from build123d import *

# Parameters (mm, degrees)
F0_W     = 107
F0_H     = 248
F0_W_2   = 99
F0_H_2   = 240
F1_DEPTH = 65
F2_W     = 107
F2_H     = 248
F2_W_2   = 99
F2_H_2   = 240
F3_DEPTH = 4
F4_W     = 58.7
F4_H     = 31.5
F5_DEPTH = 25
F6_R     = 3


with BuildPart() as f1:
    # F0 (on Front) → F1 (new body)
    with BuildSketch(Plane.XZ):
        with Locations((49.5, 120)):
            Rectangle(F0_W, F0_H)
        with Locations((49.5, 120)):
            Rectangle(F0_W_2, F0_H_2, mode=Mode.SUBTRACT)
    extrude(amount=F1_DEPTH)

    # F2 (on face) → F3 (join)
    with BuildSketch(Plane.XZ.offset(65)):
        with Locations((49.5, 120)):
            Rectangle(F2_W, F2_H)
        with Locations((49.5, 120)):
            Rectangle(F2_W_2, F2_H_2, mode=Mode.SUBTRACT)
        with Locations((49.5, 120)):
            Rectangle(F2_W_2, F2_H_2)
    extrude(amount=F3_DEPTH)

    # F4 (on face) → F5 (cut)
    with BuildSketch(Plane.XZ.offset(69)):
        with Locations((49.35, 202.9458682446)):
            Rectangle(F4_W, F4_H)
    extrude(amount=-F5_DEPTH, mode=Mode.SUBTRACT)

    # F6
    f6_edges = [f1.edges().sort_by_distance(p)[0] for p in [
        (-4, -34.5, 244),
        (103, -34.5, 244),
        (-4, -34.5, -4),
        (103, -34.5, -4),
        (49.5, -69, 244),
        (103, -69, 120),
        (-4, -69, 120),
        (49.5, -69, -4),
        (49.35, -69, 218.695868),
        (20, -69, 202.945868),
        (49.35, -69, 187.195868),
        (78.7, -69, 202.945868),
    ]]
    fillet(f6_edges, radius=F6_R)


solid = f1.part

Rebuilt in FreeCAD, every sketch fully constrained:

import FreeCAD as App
import Part
import Sketcher

V = App.Vector


def edges_at(feature, points):
    """Names of the edges that pass closest to the given points."""
    edges = feature.Shape.Edges
    near = lambda p: min(range(len(edges)), key=lambda i: edges[i].distToShape(Part.Vertex(*p))[0])
    return sorted({f"Edge{near(p) + 1}" for p in points})


def add_polygon(sketch, points):
    """Adds a closed chain of lines whose ends are joined by coincident constraints."""
    first, n = sketch.GeometryCount, len(points)
    for a, b in zip(points, points[1:] + points[:1]):
        sketch.addGeometry(Part.LineSegment(App.Vector(*a, 0), App.Vector(*b, 0)), False)
    for i in range(n):
        sketch.addConstraint(Sketcher.Constraint("Coincident", first + i, 2, first + (i + 1) % n, 1))

doc = App.newDocument("Part")
body = doc.addObject("PartDesign::Body", "Body")

# Sketch on XZ plane
sketch1 = doc.addObject("Sketcher::SketchObject", "Sketch")
body.addObject(sketch1)
sketch1.AttachmentSupport = (doc.XZ_Plane, [""])
sketch1.MapMode = "FlatFace"
add_polygon(sketch1, [(-4, 244), (-4, -4), (103, -4), (103, 244)])  # lines 0-3
add_polygon(sketch1, [(99, 0), (0, 0), (0, 240), (99, 240)])  # lines 4-7
sketch1.addConstraint([
    Sketcher.Constraint("Vertical", 0),
    Sketcher.Constraint("Horizontal", 1),
    Sketcher.Constraint("Vertical", 2),
    Sketcher.Constraint("Horizontal", 3),
    Sketcher.Constraint("Horizontal", 4),
    Sketcher.Constraint("Vertical", 5),
    Sketcher.Constraint("Horizontal", 6),
    Sketcher.Constraint("Vertical", 7),
    Sketcher.Constraint("Coincident", 4, 2, -1, 1),
    Sketcher.Constraint("DistanceX", 1, 1, 1, 2, 107.0),
    Sketcher.Constraint("DistanceX", 4, 2, 4, 1, 99.0),
    Sketcher.Constraint("DistanceY", 0, 2, 0, 1, 248.0),
    Sketcher.Constraint("DistanceY", 5, 1, 5, 2, 240.0),
    Sketcher.Constraint("DistanceX", 0, 2, -1, 1, 4.0),
    Sketcher.Constraint("DistanceY", 0, 2, -1, 1, 4.0),
])
pad1 = doc.addObject("PartDesign::Pad", "Pad")
body.addObject(pad1)
pad1.Profile = sketch1
pad1.Length = 65

# Sketch on XZ plane
sketch2 = doc.addObject("Sketcher::SketchObject", "Sketch001")
body.addObject(sketch2)
sketch2.AttachmentSupport = (doc.XZ_Plane, [""])
sketch2.MapMode = "FlatFace"
sketch2.AttachmentOffset = App.Placement(V(0, 0, 65), App.Rotation())
add_polygon(sketch2, [(-4, 244), (-4, -4), (103, -4), (103, 244)])  # lines 0-3
sketch2.addConstraint([
    Sketcher.Constraint("Vertical", 0),
    Sketcher.Constraint("Horizontal", 1),
    Sketcher.Constraint("Vertical", 2),
    Sketcher.Constraint("Horizontal", 3),
    Sketcher.Constraint("DistanceX", 1, 1, 1, 2, 107.0),
    Sketcher.Constraint("DistanceY", 0, 2, 0, 1, 248.0),
    Sketcher.Constraint("DistanceX", 0, 2, -1, 1, 4.0),
    Sketcher.Constraint("DistanceY", 0, 2, -1, 1, 4.0),
])
pad2 = doc.addObject("PartDesign::Pad", "Pad001")
body.addObject(pad2)
pad2.Profile = sketch2
pad2.Length = 4

# Sketch on XZ plane
sketch3 = doc.addObject("Sketcher::SketchObject", "Sketch002")
body.addObject(sketch3)
sketch3.AttachmentSupport = (doc.XZ_Plane, [""])
sketch3.MapMode = "FlatFace"
sketch3.AttachmentOffset = App.Placement(V(0, 0, 69), App.Rotation())
add_polygon(sketch3, [(20, 219), (20, 187), (79, 187), (79, 219)])  # lines 0-3
sketch3.addConstraint([
    Sketcher.Constraint("Vertical", 0),
    Sketcher.Constraint("Horizontal", 1),
    Sketcher.Constraint("Vertical", 2),
    Sketcher.Constraint("Horizontal", 3),
    Sketcher.Constraint("DistanceX", 1, 1, 1, 2, 58.7),
    Sketcher.Constraint("DistanceY", 0, 2, 0, 1, 31.5),
    Sketcher.Constraint("DistanceX", -1, 1, 0, 2, 20.0),
    Sketcher.Constraint("DistanceY", -1, 1, 0, 2, 187.195868),
])
pocket1 = doc.addObject("PartDesign::Pocket", "Pocket")
body.addObject(pocket1)
pocket1.Profile = sketch3
pocket1.Length = 25
doc.recompute()

fillet = doc.addObject("PartDesign::Fillet", "Fillet")
body.addObject(fillet)
fillet.Base = (pocket1, edges_at(pocket1, [
    (-4, -34.5, 244),
    (103, -34.5, 244),
    (-4, -34.5, -4),
    (103, -34.5, -4),
    (49.5, -69, 244),
    (103, -69, 120),
    (-4, -69, 120),
    (49.5, -69, -4),
    (49.35, -69, 218.696),
    (20, -69, 202.946),
    (49.35, -69, 187.196),
    (78.7, -69, 202.946),
]))
fillet.Radius = 3

doc.recompute()
